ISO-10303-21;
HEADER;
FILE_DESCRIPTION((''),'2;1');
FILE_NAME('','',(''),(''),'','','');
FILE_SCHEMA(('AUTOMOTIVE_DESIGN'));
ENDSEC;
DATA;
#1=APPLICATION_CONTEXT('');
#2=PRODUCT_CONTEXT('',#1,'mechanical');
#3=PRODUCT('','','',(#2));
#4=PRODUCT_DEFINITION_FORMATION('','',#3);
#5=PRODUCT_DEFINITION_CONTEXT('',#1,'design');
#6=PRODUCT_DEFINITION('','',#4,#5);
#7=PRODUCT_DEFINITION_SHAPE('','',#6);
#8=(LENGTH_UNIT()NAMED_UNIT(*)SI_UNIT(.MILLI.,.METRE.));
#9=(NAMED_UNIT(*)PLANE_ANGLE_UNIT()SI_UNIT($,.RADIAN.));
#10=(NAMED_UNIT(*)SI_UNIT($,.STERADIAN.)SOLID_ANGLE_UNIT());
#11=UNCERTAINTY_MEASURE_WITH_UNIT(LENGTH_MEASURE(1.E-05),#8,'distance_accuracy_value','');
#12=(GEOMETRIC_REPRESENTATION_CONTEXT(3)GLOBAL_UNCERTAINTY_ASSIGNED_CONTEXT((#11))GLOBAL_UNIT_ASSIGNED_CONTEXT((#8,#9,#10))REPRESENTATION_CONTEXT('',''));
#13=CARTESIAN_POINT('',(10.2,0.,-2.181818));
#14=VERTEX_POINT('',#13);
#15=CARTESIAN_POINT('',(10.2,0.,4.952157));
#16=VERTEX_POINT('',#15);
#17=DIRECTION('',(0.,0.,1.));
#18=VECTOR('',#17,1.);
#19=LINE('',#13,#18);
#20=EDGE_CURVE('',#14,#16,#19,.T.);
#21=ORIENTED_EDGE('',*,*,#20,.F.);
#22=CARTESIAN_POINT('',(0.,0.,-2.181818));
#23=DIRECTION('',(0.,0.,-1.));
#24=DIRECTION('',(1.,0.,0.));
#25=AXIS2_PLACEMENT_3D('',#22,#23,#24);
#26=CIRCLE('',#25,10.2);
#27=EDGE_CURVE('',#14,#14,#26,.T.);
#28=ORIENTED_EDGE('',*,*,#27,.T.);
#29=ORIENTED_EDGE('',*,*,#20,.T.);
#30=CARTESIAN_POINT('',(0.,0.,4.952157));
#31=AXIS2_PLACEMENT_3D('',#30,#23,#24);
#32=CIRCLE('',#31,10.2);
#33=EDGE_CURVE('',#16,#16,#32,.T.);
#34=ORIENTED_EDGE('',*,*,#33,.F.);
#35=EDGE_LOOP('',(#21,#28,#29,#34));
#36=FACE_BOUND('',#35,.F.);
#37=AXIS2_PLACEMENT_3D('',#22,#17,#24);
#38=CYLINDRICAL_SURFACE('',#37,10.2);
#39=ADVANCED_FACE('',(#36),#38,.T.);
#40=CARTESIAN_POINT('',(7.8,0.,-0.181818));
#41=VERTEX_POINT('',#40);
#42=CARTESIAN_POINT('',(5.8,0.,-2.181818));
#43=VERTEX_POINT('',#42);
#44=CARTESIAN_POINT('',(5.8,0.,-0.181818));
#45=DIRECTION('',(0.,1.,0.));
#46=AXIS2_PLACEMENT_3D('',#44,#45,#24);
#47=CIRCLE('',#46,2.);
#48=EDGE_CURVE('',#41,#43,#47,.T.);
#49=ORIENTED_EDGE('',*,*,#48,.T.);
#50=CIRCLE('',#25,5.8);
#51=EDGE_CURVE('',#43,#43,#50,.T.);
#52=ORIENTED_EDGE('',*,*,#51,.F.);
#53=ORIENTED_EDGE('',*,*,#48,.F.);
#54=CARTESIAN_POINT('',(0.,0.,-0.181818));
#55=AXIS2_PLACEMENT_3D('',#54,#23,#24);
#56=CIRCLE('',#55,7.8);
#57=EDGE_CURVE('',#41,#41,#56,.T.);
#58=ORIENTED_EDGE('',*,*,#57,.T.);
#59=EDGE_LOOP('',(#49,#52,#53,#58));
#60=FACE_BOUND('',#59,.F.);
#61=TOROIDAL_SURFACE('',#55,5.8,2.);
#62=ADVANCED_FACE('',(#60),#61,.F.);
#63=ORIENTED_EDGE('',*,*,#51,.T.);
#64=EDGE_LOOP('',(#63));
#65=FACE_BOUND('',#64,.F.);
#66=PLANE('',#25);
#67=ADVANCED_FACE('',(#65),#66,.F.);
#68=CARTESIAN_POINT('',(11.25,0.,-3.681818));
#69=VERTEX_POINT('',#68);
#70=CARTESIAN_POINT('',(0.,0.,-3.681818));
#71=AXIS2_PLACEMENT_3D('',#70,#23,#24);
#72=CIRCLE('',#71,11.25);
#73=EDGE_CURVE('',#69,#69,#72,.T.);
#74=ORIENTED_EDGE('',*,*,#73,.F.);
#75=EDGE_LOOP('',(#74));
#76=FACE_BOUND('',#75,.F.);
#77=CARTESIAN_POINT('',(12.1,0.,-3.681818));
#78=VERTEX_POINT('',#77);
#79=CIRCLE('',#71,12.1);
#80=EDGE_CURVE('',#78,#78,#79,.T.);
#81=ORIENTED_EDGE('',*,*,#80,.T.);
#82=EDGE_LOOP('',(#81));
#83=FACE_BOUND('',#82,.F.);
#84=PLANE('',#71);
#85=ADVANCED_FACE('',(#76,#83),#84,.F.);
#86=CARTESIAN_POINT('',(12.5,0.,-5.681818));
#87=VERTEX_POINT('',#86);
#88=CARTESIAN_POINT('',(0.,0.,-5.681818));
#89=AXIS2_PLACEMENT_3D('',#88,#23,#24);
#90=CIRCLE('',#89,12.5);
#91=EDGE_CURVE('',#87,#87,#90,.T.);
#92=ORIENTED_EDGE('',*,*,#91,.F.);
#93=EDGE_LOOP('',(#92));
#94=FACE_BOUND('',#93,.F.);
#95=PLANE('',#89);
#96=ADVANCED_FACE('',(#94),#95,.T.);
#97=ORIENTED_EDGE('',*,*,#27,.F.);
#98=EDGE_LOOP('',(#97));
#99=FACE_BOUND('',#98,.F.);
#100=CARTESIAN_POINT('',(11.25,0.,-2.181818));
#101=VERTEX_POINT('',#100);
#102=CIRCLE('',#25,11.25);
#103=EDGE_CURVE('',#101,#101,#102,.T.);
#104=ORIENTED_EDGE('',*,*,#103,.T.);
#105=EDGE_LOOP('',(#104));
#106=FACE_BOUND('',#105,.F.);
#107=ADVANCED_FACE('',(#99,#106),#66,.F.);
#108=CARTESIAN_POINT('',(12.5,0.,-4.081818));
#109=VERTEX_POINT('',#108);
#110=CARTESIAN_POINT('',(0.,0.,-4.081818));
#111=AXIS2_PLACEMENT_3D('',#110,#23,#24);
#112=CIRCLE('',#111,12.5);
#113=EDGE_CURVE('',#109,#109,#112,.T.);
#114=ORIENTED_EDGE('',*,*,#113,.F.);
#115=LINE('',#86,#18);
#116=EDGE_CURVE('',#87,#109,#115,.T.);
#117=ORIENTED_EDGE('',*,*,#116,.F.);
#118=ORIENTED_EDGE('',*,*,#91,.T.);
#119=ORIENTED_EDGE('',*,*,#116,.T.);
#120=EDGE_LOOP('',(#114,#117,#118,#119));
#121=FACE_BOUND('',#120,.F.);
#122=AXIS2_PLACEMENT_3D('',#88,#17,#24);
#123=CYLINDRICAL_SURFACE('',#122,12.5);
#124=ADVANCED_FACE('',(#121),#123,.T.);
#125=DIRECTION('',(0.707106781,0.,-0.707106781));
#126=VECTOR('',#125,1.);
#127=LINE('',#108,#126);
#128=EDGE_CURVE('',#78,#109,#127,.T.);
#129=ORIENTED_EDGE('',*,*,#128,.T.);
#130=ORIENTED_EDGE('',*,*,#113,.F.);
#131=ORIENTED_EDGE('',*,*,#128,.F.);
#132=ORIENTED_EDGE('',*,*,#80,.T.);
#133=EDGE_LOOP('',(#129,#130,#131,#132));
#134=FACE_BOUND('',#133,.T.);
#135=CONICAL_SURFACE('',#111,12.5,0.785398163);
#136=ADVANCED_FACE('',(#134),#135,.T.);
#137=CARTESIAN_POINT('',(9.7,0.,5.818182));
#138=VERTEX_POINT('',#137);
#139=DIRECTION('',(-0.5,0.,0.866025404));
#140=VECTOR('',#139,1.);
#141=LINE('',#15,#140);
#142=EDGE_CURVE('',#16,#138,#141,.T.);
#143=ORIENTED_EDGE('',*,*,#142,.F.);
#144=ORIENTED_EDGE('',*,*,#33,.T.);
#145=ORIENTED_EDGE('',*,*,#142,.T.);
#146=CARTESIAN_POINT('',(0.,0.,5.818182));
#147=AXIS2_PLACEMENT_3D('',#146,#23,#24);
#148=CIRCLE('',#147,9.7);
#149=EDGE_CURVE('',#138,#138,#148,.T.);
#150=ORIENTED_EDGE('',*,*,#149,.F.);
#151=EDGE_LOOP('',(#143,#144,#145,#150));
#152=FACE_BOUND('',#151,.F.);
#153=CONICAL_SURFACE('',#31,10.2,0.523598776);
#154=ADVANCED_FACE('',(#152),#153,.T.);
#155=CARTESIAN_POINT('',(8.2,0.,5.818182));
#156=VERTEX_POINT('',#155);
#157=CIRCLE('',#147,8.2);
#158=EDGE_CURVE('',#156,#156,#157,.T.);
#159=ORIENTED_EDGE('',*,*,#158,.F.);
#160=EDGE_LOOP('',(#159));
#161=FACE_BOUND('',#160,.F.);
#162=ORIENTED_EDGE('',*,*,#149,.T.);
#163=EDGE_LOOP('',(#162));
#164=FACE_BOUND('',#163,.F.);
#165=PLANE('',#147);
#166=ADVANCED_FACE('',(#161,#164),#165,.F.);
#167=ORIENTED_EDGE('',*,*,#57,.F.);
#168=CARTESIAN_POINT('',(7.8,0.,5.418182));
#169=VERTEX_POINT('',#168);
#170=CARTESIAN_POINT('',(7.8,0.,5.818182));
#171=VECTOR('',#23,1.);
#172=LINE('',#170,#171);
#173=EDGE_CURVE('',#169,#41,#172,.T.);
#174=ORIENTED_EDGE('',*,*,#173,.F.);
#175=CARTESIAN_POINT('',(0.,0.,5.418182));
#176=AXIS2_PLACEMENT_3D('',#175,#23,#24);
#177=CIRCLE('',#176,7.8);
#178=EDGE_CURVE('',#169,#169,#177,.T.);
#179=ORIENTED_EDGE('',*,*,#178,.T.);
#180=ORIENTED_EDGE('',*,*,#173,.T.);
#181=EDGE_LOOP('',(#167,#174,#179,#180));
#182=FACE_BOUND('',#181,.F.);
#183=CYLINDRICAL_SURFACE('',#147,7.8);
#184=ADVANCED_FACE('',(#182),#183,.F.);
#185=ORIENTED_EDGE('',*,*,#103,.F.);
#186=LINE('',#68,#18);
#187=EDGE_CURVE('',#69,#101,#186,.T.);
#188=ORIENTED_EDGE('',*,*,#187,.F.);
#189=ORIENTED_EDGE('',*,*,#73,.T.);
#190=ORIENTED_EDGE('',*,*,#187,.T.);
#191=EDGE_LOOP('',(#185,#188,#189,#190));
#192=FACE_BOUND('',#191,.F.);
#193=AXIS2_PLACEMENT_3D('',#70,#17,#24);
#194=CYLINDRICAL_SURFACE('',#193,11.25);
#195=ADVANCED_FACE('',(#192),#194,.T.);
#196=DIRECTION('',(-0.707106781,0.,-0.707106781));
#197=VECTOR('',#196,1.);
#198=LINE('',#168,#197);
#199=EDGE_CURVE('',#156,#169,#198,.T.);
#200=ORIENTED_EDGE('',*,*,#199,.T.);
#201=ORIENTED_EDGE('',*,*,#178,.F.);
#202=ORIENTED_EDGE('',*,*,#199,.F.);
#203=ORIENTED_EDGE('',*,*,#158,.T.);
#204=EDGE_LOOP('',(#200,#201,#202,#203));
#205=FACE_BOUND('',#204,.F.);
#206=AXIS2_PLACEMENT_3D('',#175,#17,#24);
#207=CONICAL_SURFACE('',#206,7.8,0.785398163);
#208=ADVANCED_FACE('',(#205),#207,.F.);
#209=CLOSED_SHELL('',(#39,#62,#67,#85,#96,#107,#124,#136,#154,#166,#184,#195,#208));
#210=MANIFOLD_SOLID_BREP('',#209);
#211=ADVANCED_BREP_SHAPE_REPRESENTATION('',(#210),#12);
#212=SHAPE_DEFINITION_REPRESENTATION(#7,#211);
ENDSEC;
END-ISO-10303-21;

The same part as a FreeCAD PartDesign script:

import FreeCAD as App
import Part
import Sketcher
from FreeCAD import Vector
Q = App.Units.Quantity


def edges_at(feature, points):
    """Names of the edges that pass closest to the given points."""
    edges = feature.Shape.Edges
    near = lambda p: min(range(len(edges)), key=lambda i: edges[i].distToShape(Part.Vertex(*p))[0])
    return sorted({f"Edge{near(p) + 1}" for p in points})


def add_polygon(sketch, points):
    """Adds a closed chain of lines whose ends are joined by coincident constraints."""
    first, n = sketch.GeometryCount, len(points)
    for a, b in zip(points, points[1:] + points[:1]):
        sketch.addGeometry(Part.LineSegment(App.Vector(*a, 0), App.Vector(*b, 0)), False)
    for i in range(n):
        sketch.addConstraint(Sketcher.Constraint("Coincident", first + i, 2, first + (i + 1) % n, 1))

doc = App.newDocument("Part")
params = doc.addObject("Spreadsheet::Sheet", "Params")
for row, (alias, value) in enumerate([
    ("sketch1_height", "8 mm"),
    ("sketch1_height2", "2 mm"),
    ("sketch1_width", "2.4 mm"),
    ("sketch1_width2", "7.8 mm"),
    ("sketch1_width3", "12.5 mm"),
    ("revolution_angle", "360 deg"),
    ("fillet_radius", "2 mm"),
    ("chamfer_size", "0.4 mm"),
    ("chamfer2_size", "0.866025 mm"),
    ("chamfer2_size2", "0.5 mm"),
    ("chamfer3_size", "0.4 mm"),
], start=1):
    params.set(f"A{row}", alias)
    params.set(f"B{row}", "=" + value)
    params.setAlias(f"B{row}", alias)

body = doc.addObject("PartDesign::Body", "Body")

# Sketch on XZ plane
sketch1 = doc.addObject("Sketcher::SketchObject", "Sketch")
body.addObject(sketch1)
sketch1.AttachmentSupport = (doc.XZ_Plane, [""])
sketch1.MapMode = "FlatFace"
add_polygon(sketch1, [(10.2, 5.818182), (7.8, 5.818182), (7.8, -2.181818), (0, -2.181818), (0, -5.681818), (12.5, -5.681818), (12.5, -3.681818), (11.25, -3.681818), (11.25, -2.181818), (10.2, -2.181818)])  # lines 0-9
sketch1.addConstraint([
    Sketcher.Constraint("Horizontal", 0),
    Sketcher.Constraint("Vertical", 1),
    Sketcher.Constraint("Horizontal", 2),
    Sketcher.Constraint("Vertical", 3),
    Sketcher.Constraint("Horizontal", 4),
    Sketcher.Constraint("Vertical", 5),
    Sketcher.Constraint("Horizontal", 6),
    Sketcher.Constraint("Vertical", 7),
    Sketcher.Constraint("Horizontal", 8),
    Sketcher.Constraint("Vertical", 9),
    Sketcher.Constraint("PointOnObject", 2, 2, -2),
    Sketcher.Constraint("Horizontal", 2, 2, 7, 2),
    Sketcher.Constraint("DistanceY", 1, 2, 1, 1, Q("8 mm")),
    Sketcher.Constraint("DistanceY", 5, 1, 5, 2, Q("2 mm")),
    Sketcher.Constraint("DistanceX", 0, 2, 0, 1, Q("2.4 mm")),
    Sketcher.Constraint("DistanceX", 2, 2, 2, 1, Q("7.8 mm")),
    Sketcher.Constraint("DistanceX", 4, 1, 4, 2, Q("12.5 mm")),
    Sketcher.Constraint("DistanceY", 3, 2, 3, 1, Q("3.5 mm")),
    Sketcher.Constraint("DistanceX", 6, 2, 6, 1, Q("1.25 mm")),
    Sketcher.Constraint("DistanceY", -1, 1, 0, 2, Q("5.818182 mm")),
])
sketch1.setExpression("Constraints[22]", "Params.sketch1_height")
sketch1.setExpression("Constraints[23]", "Params.sketch1_height2")
sketch1.setExpression("Constraints[24]", "Params.sketch1_width")
sketch1.setExpression("Constraints[25]", "Params.sketch1_width2")
sketch1.setExpression("Constraints[26]", "Params.sketch1_width3")
revolution = doc.addObject("PartDesign::Revolution", "Revolution")
body.addObject(revolution)
revolution.Profile = sketch1
revolution.ReferenceAxis = (sketch1, ["V_Axis"])
revolution.setExpression("Angle", "Params.revolution_angle")
doc.recompute()

fillet = doc.addObject("PartDesign::Fillet", "Fillet")
body.addObject(fillet)
fillet.Base = (revolution, edges_at(revolution, [(-7.8, 0, -2.182)]))
fillet.setExpression("Radius", "Params.fillet_radius")
doc.recompute()

chamfer = doc.addObject("PartDesign::Chamfer", "Chamfer")
body.addObject(chamfer)
chamfer.Base = (fillet, edges_at(fillet, [(-12.5, 0, -3.682)]))
chamfer.setExpression("Size", "Params.chamfer_size")
doc.recompute()

chamfer2 = doc.addObject("PartDesign::Chamfer", "Chamfer001")
body.addObject(chamfer2)
chamfer2.Base = (chamfer, edges_at(chamfer, [(-10.2, 0, 5.818)]))
chamfer2.ChamferType = "Two distances"
chamfer2.setExpression("Size", "Params.chamfer2_size")
chamfer2.setExpression("Size2", "Params.chamfer2_size2")
doc.recompute()

chamfer3 = doc.addObject("PartDesign::Chamfer", "Chamfer002")
body.addObject(chamfer3)
chamfer3.Base = (chamfer2, edges_at(chamfer2, [(-7.8, 0, 5.818)]))
chamfer3.setExpression("Size", "Params.chamfer3_size")

doc.recompute()
